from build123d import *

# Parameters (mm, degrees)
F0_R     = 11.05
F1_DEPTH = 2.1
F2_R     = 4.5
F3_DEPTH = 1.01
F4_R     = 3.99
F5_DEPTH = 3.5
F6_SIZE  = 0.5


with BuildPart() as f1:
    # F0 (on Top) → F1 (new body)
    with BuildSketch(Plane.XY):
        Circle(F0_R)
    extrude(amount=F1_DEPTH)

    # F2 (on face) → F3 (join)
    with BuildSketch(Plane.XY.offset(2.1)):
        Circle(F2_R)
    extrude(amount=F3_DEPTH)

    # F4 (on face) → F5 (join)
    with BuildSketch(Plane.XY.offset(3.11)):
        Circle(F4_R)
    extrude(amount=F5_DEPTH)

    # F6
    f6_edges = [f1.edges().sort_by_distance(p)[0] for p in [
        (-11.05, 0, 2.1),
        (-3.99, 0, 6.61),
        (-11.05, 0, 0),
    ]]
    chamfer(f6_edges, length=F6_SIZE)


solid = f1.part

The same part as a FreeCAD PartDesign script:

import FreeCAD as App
import Part
import Sketcher

V = App.Vector
Q = App.Units.Quantity


def edges_at(feature, points):
    """Names of the edges that pass closest to the given points."""
    edges = feature.Shape.Edges
    near = lambda p: min(range(len(edges)), key=lambda i: edges[i].distToShape(Part.Vertex(*p))[0])
    return sorted({f"Edge{near(p) + 1}" for p in points})

doc = App.newDocument("Part")
body = doc.addObject("PartDesign::Body", "Body")

# Sketch on XY plane
sketch1 = body.newObject("Sketcher::SketchObject", "Sketch")
sketch1.AttachmentSupport = (doc.getObject("XY_Plane"), [""])
sketch1.MapMode = "FlatFace"
sketch1.addGeometry(Part.Circle(V(0, 0, 0), V(0, 0, 1), 11), False)
sketch1.addConstraint([
    Sketcher.Constraint("Coincident", 0, 3, -1, 1),
    Sketcher.Constraint("Diameter", 0, Q("22.1 mm")),
])
pad1 = body.newObject("PartDesign::Pad", "Pad")
pad1.Profile = sketch1
pad1.Length = 2.1

# Sketch on XY plane
sketch2 = body.newObject("Sketcher::SketchObject", "Sketch001")
sketch2.AttachmentSupport = (doc.getObject("XY_Plane"), [""])
sketch2.MapMode = "FlatFace"
sketch2.AttachmentOffset = App.Placement(V(0, 0, 2.1), App.Rotation())
sketch2.addGeometry(Part.Circle(V(0, 0, 0), V(0, 0, 1), 4.5), False)
sketch2.addConstraint([
    Sketcher.Constraint("Coincident", 0, 3, -1, 1),
    Sketcher.Constraint("Diameter", 0, Q("9 mm")),
])
pad2 = body.newObject("PartDesign::Pad", "Pad001")
pad2.Profile = sketch2
pad2.Length = 1.01

# Sketch on XY plane
sketch3 = body.newObject("Sketcher::SketchObject", "Sketch002")
sketch3.AttachmentSupport = (doc.getObject("XY_Plane"), [""])
sketch3.MapMode = "FlatFace"
sketch3.AttachmentOffset = App.Placement(V(0, 0, 3.11), App.Rotation())
sketch3.addGeometry(Part.Circle(V(0, 0, 0), V(0, 0, 1), 4), False)
sketch3.addConstraint([
    Sketcher.Constraint("Coincident", 0, 3, -1, 1),
    Sketcher.Constraint("Diameter", 0, Q("7.98 mm")),
])
pad3 = body.newObject("PartDesign::Pad", "Pad002")
pad3.Profile = sketch3
pad3.Length = 3.5
doc.recompute()

chamfer = body.newObject("PartDesign::Chamfer", "Chamfer")
chamfer.Base = (pad3, edges_at(pad3, [(-11.05, 0, 2.1), (-3.99, 0, 6.61), (-11.05, 0, 0)]))
chamfer.Size = 0.5

doc.recompute()
